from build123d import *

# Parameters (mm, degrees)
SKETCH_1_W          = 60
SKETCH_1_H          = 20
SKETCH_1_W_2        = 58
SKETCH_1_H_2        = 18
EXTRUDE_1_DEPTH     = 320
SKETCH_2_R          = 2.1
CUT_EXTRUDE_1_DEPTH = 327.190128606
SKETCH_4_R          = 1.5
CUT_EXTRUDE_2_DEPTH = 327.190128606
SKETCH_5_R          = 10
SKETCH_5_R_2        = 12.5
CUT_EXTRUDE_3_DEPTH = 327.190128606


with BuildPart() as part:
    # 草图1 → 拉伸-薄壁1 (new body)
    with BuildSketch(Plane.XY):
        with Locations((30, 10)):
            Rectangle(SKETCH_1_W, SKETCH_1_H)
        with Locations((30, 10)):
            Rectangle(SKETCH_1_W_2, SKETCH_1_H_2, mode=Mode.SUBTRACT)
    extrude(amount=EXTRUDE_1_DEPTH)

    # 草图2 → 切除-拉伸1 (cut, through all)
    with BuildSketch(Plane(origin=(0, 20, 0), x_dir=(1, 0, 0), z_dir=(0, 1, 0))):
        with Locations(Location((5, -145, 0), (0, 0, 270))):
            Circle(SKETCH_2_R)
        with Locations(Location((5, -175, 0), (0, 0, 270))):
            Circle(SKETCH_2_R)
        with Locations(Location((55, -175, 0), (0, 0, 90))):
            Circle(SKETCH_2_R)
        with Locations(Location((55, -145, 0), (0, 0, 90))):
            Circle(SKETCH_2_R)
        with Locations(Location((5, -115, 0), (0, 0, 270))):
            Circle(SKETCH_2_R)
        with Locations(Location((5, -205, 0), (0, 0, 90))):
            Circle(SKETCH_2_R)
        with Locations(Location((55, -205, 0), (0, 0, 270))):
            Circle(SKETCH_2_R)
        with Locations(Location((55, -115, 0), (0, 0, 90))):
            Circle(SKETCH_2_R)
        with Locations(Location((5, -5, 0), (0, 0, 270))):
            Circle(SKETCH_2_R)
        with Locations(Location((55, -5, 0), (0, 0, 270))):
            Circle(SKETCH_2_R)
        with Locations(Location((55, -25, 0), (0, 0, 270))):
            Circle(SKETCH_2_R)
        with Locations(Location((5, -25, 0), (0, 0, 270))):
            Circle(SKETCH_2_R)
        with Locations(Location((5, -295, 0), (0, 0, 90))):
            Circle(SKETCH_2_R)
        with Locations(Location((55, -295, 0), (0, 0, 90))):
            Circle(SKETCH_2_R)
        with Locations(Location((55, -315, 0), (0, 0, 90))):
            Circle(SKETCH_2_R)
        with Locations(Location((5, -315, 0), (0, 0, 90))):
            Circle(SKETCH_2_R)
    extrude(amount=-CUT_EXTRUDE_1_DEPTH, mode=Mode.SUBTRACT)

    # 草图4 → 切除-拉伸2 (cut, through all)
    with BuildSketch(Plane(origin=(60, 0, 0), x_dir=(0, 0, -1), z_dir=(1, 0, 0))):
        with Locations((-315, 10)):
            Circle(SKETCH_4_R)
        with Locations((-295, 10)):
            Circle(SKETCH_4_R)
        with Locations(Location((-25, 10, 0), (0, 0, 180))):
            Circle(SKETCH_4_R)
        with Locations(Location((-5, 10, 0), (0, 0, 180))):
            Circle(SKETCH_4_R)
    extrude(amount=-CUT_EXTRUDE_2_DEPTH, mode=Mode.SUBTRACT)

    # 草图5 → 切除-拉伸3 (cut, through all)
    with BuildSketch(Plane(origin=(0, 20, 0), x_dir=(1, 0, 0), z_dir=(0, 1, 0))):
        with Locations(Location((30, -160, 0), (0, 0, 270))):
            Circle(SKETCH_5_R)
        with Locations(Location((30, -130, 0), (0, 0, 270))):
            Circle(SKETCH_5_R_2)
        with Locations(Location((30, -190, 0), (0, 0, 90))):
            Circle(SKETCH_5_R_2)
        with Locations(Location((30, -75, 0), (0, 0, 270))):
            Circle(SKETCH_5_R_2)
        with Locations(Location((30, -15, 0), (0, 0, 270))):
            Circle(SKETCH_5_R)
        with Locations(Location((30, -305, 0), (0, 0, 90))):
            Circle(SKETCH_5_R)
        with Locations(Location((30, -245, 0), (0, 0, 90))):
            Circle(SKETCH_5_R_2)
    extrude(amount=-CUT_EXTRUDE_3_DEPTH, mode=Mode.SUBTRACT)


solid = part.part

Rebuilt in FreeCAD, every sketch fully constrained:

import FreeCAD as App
import Part
import Sketcher

V = App.Vector

doc = App.newDocument("Part")
body = doc.addObject("PartDesign::Body", "Body")

sketch1 = doc.addObject("Sketcher::SketchObject", "Sketch")
body.addObject(sketch1)
sketch1.AttachmentSupport = (doc.XY_Plane, [""])
sketch1.MapMode = "FlatFace"
sketch1.addGeometry([
    Part.LineSegment(V(0, 20, 0), V(0, 0, 0)),
    Part.LineSegment(V(0, 0, 0), V(60, 0, 0)),
    Part.LineSegment(V(60, 0, 0), V(60, 20, 0)),
    Part.LineSegment(V(60, 20, 0), V(0, 20, 0)),
    Part.LineSegment(V(59, 1, 0), V(1, 1, 0)),
    Part.LineSegment(V(1, 1, 0), V(1, 19, 0)),
    Part.LineSegment(V(1, 19, 0), V(59, 19, 0)),
    Part.LineSegment(V(59, 19, 0), V(59, 1, 0)),
], False)
sketch1.addConstraint([
    Sketcher.Constraint("Coincident", 0, 2, 1, 1),
    Sketcher.Constraint("Coincident", 1, 2, 2, 1),
    Sketcher.Constraint("Coincident", 2, 2, 3, 1),
    Sketcher.Constraint("Coincident", 3, 2, 0, 1),
    Sketcher.Constraint("Coincident", 4, 2, 5, 1),
    Sketcher.Constraint("Coincident", 5, 2, 6, 1),
    Sketcher.Constraint("Coincident", 6, 2, 7, 1),
    Sketcher.Constraint("Coincident", 7, 2, 4, 1),
    Sketcher.Constraint("Vertical", 0),
    Sketcher.Constraint("Horizontal", 1),
    Sketcher.Constraint("Vertical", 2),
    Sketcher.Constraint("Horizontal", 3),
    Sketcher.Constraint("Horizontal", 4),
    Sketcher.Constraint("Vertical", 5),
    Sketcher.Constraint("Horizontal", 6),
    Sketcher.Constraint("Vertical", 7),
    Sketcher.Constraint("Coincident", 0, 2, -1, 1),
    Sketcher.Constraint("DistanceX", 1, 1, 1, 2, 60.0),
    Sketcher.Constraint("DistanceX", 4, 2, 4, 1, 58.0),
    Sketcher.Constraint("DistanceY", 0, 2, 0, 1, 20.0),
    Sketcher.Constraint("DistanceY", 5, 1, 5, 2, 18.0),
    Sketcher.Constraint("DistanceX", -1, 1, 4, 2, 1.0),
    Sketcher.Constraint("DistanceY", -1, 1, 4, 2, 1.0),
])
pad1 = doc.addObject("PartDesign::Pad", "Pad")
body.addObject(pad1)
pad1.Profile = sketch1
pad1.Length = 320

sketch2 = doc.addObject("Sketcher::SketchObject", "Sketch001")
body.addObject(sketch2)
sketch2.AttachmentSupport = (doc.XZ_Plane, [""])
sketch2.MapMode = "FlatFace"
sketch2.AttachmentOffset = App.Placement(V(0, 0, -20), App.Rotation())
sketch2.addGeometry([
    Part.Circle(V(5, 145, 0), V(0, 0, 1), 2.1),
    Part.Circle(V(5, 175, 0), V(0, 0, 1), 2.1),
    Part.Circle(V(55, 175, 0), V(0, 0, 1), 2.1),
    Part.Circle(V(55, 145, 0), V(0, 0, 1), 2.1),
    Part.Circle(V(5, 115, 0), V(0, 0, 1), 2.1),
    Part.Circle(V(5, 205, 0), V(0, 0, 1), 2.1),
    Part.Circle(V(55, 205, 0), V(0, 0, 1), 2.1),
    Part.Circle(V(55, 115, 0), V(0, 0, 1), 2.1),
    Part.Circle(V(5, 5, 0), V(0, 0, 1), 2.1),
    Part.Circle(V(55, 5, 0), V(0, 0, 1), 2.1),
    Part.Circle(V(55, 25, 0), V(0, 0, 1), 2.1),
    Part.Circle(V(5, 25, 0), V(0, 0, 1), 2.1),
    Part.Circle(V(5, 295, 0), V(0, 0, 1), 2.1),
    Part.Circle(V(55, 295, 0), V(0, 0, 1), 2.1),
    Part.Circle(V(55, 315, 0), V(0, 0, 1), 2.1),
    Part.Circle(V(5, 315, 0), V(0, 0, 1), 2.1),
], False)
sketch2.addConstraint([
    Sketcher.Constraint("Equal", 0, 1),
    Sketcher.Constraint("Equal", 1, 2),
    Sketcher.Constraint("Equal", 2, 3),
    Sketcher.Constraint("Equal", 3, 4),
    Sketcher.Constraint("Equal", 4, 5),
    Sketcher.Constraint("Equal", 5, 6),
    Sketcher.Constraint("Equal", 6, 7),
    Sketcher.Constraint("Equal", 7, 8),
    Sketcher.Constraint("Equal", 8, 9),
    Sketcher.Constraint("Equal", 9, 10),
    Sketcher.Constraint("Equal", 10, 11),
    Sketcher.Constraint("Equal", 11, 12),
    Sketcher.Constraint("Equal", 12, 13),
    Sketcher.Constraint("Equal", 13, 14),
    Sketcher.Constraint("Equal", 14, 15),
    Sketcher.Constraint("Horizontal", 1, 3, 2, 3),
    Sketcher.Constraint("Horizontal", 0, 3, 3, 3),
    Sketcher.Constraint("Horizontal", 5, 3, 6, 3),
    Sketcher.Constraint("Horizontal", 4, 3, 7, 3),
    Sketcher.Constraint("Horizontal", 8, 3, 9, 3),
    Sketcher.Constraint("Horizontal", 10, 3, 11, 3),
    Sketcher.Constraint("Horizontal", 12, 3, 13, 3),
    Sketcher.Constraint("Horizontal", 14, 3, 15, 3),
    Sketcher.Constraint("Vertical", 0, 3, 1, 3),
    Sketcher.Constraint("Vertical", 2, 3, 3, 3),
    Sketcher.Constraint("Vertical", 1, 3, 4, 3),
    Sketcher.Constraint("Vertical", 4, 3, 5, 3),
    Sketcher.Constraint("Vertical", 3, 3, 6, 3),
    Sketcher.Constraint("Vertical", 6, 3, 7, 3),
    Sketcher.Constraint("Vertical", 5, 3, 8, 3),
    Sketcher.Constraint("Vertical", 7, 3, 9, 3),
    Sketcher.Constraint("Vertical", 9, 3, 10, 3),
    Sketcher.Constraint("Vertical", 8, 3, 11, 3),
    Sketcher.Constraint("Vertical", 11, 3, 12, 3),
    Sketcher.Constraint("Vertical", 10, 3, 13, 3),
    Sketcher.Constraint("Vertical", 13, 3, 14, 3),
    Sketcher.Constraint("Vertical", 12, 3, 15, 3),
    Sketcher.Constraint("Diameter", 0, 4.2),
    Sketcher.Constraint("DistanceX", -1, 1, 0, 3, 5.0),
    Sketcher.Constraint("DistanceY", -1, 1, 0, 3, 145.0),
    Sketcher.Constraint("DistanceY", -1, 1, 1, 3, 175.0),
    Sketcher.Constraint("DistanceX", -1, 1, 2, 3, 55.0),
    Sketcher.Constraint("DistanceY", -1, 1, 4, 3, 115.0),
    Sketcher.Constraint("DistanceY", -1, 1, 5, 3, 205.0),
    Sketcher.Constraint("DistanceY", -1, 1, 8, 3, 5.0),
    Sketcher.Constraint("DistanceY", -1, 1, 10, 3, 25.0),
    Sketcher.Constraint("DistanceY", -1, 1, 12, 3, 295.0),
    Sketcher.Constraint("DistanceY", -1, 1, 14, 3, 315.0),
])
pocket1 = doc.addObject("PartDesign::Pocket", "Pocket")
body.addObject(pocket1)
pocket1.Profile = sketch2
pocket1.Type = "ThroughAll"
pocket1.Reversed = True

sketch3 = doc.addObject("Sketcher::SketchObject", "Sketch002")
body.addObject(sketch3)
sketch3.AttachmentSupport = (doc.YZ_Plane, [""])
sketch3.MapMode = "FlatFace"
sketch3.AttachmentOffset = App.Placement(V(0, 0, 60), App.Rotation())
sketch3.addGeometry([
    Part.Circle(V(10, 315, 0), V(0, 0, 1), 1.5),
    Part.Circle(V(10, 295, 0), V(0, 0, 1), 1.5),
    Part.Circle(V(10, 25, 0), V(0, 0, 1), 1.5),
    Part.Circle(V(10, 5, 0), V(0, 0, 1), 1.5),
], False)
sketch3.addConstraint([
    Sketcher.Constraint("Equal", 0, 1),
    Sketcher.Constraint("Equal", 1, 2),
    Sketcher.Constraint("Equal", 2, 3),
    Sketcher.Constraint("Vertical", 0, 3, 1, 3),
    Sketcher.Constraint("Vertical", 1, 3, 2, 3),
    Sketcher.Constraint("Vertical", 2, 3, 3, 3),
    Sketcher.Constraint("Diameter", 0, 3.0),
    Sketcher.Constraint("DistanceX", -1, 1, 0, 3, 10.0),
    Sketcher.Constraint("DistanceY", -1, 1, 0, 3, 315.0),
    Sketcher.Constraint("DistanceY", -1, 1, 1, 3, 295.0),
    Sketcher.Constraint("DistanceY", -1, 1, 2, 3, 25.0),
    Sketcher.Constraint("DistanceY", -1, 1, 3, 3, 5.0),
])
pocket2 = doc.addObject("PartDesign::Pocket", "Pocket001")
body.addObject(pocket2)
pocket2.Profile = sketch3
pocket2.Type = "ThroughAll"

sketch4 = doc.addObject("Sketcher::SketchObject", "Sketch003")
body.addObject(sketch4)
sketch4.AttachmentSupport = (doc.XZ_Plane, [""])
sketch4.MapMode = "FlatFace"
sketch4.AttachmentOffset = App.Placement(V(0, 0, -20), App.Rotation())
sketch4.addGeometry([
    Part.Circle(V(30, 160, 0), V(0, 0, 1), 10),
    Part.Circle(V(30, 130, 0), V(0, 0, 1), 12),
    Part.Circle(V(30, 190, 0), V(0, 0, 1), 12),
    Part.Circle(V(30, 75, 0), V(0, 0, 1), 12),
    Part.Circle(V(30, 15, 0), V(0, 0, 1), 10),
    Part.Circle(V(30, 305, 0), V(0, 0, 1), 10),
    Part.Circle(V(30, 245, 0), V(0, 0, 1), 12),
], False)
sketch4.addConstraint([
    Sketcher.Constraint("Equal", 1, 2),
    Sketcher.Constraint("Equal", 2, 3),
    Sketcher.Constraint("Equal", 0, 4),
    Sketcher.Constraint("Equal", 4, 5),
    Sketcher.Constraint("Equal", 3, 6),
    Sketcher.Constraint("Vertical", 0, 3, 1, 3),
    Sketcher.Constraint("Vertical", 1, 3, 2, 3),
    Sketcher.Constraint("Vertical", 2, 3, 3, 3),
    Sketcher.Constraint("Vertical", 3, 3, 4, 3),
    Sketcher.Constraint("Vertical", 4, 3, 5, 3),
    Sketcher.Constraint("Vertical", 5, 3, 6, 3),
    Sketcher.Constraint("Diameter", 0, 20.0),
    Sketcher.Constraint("Diameter", 1, 25.0),
    Sketcher.Constraint("DistanceX", -1, 1, 0, 3, 30.0),
    Sketcher.Constraint("DistanceY", -1, 1, 0, 3, 160.0),
    Sketcher.Constraint("DistanceY", -1, 1, 1, 3, 130.0),
    Sketcher.Constraint("DistanceY", -1, 1, 2, 3, 190.0),
    Sketcher.Constraint("DistanceY", -1, 1, 3, 3, 75.0),
    Sketcher.Constraint("DistanceY", -1, 1, 4, 3, 15.0),
    Sketcher.Constraint("DistanceY", -1, 1, 5, 3, 305.0),
    Sketcher.Constraint("DistanceY", -1, 1, 6, 3, 245.0),
])
pocket3 = doc.addObject("PartDesign::Pocket", "Pocket002")
body.addObject(pocket3)
pocket3.Profile = sketch4
pocket3.Type = "ThroughAll"
pocket3.Reversed = True

doc.recompute()
